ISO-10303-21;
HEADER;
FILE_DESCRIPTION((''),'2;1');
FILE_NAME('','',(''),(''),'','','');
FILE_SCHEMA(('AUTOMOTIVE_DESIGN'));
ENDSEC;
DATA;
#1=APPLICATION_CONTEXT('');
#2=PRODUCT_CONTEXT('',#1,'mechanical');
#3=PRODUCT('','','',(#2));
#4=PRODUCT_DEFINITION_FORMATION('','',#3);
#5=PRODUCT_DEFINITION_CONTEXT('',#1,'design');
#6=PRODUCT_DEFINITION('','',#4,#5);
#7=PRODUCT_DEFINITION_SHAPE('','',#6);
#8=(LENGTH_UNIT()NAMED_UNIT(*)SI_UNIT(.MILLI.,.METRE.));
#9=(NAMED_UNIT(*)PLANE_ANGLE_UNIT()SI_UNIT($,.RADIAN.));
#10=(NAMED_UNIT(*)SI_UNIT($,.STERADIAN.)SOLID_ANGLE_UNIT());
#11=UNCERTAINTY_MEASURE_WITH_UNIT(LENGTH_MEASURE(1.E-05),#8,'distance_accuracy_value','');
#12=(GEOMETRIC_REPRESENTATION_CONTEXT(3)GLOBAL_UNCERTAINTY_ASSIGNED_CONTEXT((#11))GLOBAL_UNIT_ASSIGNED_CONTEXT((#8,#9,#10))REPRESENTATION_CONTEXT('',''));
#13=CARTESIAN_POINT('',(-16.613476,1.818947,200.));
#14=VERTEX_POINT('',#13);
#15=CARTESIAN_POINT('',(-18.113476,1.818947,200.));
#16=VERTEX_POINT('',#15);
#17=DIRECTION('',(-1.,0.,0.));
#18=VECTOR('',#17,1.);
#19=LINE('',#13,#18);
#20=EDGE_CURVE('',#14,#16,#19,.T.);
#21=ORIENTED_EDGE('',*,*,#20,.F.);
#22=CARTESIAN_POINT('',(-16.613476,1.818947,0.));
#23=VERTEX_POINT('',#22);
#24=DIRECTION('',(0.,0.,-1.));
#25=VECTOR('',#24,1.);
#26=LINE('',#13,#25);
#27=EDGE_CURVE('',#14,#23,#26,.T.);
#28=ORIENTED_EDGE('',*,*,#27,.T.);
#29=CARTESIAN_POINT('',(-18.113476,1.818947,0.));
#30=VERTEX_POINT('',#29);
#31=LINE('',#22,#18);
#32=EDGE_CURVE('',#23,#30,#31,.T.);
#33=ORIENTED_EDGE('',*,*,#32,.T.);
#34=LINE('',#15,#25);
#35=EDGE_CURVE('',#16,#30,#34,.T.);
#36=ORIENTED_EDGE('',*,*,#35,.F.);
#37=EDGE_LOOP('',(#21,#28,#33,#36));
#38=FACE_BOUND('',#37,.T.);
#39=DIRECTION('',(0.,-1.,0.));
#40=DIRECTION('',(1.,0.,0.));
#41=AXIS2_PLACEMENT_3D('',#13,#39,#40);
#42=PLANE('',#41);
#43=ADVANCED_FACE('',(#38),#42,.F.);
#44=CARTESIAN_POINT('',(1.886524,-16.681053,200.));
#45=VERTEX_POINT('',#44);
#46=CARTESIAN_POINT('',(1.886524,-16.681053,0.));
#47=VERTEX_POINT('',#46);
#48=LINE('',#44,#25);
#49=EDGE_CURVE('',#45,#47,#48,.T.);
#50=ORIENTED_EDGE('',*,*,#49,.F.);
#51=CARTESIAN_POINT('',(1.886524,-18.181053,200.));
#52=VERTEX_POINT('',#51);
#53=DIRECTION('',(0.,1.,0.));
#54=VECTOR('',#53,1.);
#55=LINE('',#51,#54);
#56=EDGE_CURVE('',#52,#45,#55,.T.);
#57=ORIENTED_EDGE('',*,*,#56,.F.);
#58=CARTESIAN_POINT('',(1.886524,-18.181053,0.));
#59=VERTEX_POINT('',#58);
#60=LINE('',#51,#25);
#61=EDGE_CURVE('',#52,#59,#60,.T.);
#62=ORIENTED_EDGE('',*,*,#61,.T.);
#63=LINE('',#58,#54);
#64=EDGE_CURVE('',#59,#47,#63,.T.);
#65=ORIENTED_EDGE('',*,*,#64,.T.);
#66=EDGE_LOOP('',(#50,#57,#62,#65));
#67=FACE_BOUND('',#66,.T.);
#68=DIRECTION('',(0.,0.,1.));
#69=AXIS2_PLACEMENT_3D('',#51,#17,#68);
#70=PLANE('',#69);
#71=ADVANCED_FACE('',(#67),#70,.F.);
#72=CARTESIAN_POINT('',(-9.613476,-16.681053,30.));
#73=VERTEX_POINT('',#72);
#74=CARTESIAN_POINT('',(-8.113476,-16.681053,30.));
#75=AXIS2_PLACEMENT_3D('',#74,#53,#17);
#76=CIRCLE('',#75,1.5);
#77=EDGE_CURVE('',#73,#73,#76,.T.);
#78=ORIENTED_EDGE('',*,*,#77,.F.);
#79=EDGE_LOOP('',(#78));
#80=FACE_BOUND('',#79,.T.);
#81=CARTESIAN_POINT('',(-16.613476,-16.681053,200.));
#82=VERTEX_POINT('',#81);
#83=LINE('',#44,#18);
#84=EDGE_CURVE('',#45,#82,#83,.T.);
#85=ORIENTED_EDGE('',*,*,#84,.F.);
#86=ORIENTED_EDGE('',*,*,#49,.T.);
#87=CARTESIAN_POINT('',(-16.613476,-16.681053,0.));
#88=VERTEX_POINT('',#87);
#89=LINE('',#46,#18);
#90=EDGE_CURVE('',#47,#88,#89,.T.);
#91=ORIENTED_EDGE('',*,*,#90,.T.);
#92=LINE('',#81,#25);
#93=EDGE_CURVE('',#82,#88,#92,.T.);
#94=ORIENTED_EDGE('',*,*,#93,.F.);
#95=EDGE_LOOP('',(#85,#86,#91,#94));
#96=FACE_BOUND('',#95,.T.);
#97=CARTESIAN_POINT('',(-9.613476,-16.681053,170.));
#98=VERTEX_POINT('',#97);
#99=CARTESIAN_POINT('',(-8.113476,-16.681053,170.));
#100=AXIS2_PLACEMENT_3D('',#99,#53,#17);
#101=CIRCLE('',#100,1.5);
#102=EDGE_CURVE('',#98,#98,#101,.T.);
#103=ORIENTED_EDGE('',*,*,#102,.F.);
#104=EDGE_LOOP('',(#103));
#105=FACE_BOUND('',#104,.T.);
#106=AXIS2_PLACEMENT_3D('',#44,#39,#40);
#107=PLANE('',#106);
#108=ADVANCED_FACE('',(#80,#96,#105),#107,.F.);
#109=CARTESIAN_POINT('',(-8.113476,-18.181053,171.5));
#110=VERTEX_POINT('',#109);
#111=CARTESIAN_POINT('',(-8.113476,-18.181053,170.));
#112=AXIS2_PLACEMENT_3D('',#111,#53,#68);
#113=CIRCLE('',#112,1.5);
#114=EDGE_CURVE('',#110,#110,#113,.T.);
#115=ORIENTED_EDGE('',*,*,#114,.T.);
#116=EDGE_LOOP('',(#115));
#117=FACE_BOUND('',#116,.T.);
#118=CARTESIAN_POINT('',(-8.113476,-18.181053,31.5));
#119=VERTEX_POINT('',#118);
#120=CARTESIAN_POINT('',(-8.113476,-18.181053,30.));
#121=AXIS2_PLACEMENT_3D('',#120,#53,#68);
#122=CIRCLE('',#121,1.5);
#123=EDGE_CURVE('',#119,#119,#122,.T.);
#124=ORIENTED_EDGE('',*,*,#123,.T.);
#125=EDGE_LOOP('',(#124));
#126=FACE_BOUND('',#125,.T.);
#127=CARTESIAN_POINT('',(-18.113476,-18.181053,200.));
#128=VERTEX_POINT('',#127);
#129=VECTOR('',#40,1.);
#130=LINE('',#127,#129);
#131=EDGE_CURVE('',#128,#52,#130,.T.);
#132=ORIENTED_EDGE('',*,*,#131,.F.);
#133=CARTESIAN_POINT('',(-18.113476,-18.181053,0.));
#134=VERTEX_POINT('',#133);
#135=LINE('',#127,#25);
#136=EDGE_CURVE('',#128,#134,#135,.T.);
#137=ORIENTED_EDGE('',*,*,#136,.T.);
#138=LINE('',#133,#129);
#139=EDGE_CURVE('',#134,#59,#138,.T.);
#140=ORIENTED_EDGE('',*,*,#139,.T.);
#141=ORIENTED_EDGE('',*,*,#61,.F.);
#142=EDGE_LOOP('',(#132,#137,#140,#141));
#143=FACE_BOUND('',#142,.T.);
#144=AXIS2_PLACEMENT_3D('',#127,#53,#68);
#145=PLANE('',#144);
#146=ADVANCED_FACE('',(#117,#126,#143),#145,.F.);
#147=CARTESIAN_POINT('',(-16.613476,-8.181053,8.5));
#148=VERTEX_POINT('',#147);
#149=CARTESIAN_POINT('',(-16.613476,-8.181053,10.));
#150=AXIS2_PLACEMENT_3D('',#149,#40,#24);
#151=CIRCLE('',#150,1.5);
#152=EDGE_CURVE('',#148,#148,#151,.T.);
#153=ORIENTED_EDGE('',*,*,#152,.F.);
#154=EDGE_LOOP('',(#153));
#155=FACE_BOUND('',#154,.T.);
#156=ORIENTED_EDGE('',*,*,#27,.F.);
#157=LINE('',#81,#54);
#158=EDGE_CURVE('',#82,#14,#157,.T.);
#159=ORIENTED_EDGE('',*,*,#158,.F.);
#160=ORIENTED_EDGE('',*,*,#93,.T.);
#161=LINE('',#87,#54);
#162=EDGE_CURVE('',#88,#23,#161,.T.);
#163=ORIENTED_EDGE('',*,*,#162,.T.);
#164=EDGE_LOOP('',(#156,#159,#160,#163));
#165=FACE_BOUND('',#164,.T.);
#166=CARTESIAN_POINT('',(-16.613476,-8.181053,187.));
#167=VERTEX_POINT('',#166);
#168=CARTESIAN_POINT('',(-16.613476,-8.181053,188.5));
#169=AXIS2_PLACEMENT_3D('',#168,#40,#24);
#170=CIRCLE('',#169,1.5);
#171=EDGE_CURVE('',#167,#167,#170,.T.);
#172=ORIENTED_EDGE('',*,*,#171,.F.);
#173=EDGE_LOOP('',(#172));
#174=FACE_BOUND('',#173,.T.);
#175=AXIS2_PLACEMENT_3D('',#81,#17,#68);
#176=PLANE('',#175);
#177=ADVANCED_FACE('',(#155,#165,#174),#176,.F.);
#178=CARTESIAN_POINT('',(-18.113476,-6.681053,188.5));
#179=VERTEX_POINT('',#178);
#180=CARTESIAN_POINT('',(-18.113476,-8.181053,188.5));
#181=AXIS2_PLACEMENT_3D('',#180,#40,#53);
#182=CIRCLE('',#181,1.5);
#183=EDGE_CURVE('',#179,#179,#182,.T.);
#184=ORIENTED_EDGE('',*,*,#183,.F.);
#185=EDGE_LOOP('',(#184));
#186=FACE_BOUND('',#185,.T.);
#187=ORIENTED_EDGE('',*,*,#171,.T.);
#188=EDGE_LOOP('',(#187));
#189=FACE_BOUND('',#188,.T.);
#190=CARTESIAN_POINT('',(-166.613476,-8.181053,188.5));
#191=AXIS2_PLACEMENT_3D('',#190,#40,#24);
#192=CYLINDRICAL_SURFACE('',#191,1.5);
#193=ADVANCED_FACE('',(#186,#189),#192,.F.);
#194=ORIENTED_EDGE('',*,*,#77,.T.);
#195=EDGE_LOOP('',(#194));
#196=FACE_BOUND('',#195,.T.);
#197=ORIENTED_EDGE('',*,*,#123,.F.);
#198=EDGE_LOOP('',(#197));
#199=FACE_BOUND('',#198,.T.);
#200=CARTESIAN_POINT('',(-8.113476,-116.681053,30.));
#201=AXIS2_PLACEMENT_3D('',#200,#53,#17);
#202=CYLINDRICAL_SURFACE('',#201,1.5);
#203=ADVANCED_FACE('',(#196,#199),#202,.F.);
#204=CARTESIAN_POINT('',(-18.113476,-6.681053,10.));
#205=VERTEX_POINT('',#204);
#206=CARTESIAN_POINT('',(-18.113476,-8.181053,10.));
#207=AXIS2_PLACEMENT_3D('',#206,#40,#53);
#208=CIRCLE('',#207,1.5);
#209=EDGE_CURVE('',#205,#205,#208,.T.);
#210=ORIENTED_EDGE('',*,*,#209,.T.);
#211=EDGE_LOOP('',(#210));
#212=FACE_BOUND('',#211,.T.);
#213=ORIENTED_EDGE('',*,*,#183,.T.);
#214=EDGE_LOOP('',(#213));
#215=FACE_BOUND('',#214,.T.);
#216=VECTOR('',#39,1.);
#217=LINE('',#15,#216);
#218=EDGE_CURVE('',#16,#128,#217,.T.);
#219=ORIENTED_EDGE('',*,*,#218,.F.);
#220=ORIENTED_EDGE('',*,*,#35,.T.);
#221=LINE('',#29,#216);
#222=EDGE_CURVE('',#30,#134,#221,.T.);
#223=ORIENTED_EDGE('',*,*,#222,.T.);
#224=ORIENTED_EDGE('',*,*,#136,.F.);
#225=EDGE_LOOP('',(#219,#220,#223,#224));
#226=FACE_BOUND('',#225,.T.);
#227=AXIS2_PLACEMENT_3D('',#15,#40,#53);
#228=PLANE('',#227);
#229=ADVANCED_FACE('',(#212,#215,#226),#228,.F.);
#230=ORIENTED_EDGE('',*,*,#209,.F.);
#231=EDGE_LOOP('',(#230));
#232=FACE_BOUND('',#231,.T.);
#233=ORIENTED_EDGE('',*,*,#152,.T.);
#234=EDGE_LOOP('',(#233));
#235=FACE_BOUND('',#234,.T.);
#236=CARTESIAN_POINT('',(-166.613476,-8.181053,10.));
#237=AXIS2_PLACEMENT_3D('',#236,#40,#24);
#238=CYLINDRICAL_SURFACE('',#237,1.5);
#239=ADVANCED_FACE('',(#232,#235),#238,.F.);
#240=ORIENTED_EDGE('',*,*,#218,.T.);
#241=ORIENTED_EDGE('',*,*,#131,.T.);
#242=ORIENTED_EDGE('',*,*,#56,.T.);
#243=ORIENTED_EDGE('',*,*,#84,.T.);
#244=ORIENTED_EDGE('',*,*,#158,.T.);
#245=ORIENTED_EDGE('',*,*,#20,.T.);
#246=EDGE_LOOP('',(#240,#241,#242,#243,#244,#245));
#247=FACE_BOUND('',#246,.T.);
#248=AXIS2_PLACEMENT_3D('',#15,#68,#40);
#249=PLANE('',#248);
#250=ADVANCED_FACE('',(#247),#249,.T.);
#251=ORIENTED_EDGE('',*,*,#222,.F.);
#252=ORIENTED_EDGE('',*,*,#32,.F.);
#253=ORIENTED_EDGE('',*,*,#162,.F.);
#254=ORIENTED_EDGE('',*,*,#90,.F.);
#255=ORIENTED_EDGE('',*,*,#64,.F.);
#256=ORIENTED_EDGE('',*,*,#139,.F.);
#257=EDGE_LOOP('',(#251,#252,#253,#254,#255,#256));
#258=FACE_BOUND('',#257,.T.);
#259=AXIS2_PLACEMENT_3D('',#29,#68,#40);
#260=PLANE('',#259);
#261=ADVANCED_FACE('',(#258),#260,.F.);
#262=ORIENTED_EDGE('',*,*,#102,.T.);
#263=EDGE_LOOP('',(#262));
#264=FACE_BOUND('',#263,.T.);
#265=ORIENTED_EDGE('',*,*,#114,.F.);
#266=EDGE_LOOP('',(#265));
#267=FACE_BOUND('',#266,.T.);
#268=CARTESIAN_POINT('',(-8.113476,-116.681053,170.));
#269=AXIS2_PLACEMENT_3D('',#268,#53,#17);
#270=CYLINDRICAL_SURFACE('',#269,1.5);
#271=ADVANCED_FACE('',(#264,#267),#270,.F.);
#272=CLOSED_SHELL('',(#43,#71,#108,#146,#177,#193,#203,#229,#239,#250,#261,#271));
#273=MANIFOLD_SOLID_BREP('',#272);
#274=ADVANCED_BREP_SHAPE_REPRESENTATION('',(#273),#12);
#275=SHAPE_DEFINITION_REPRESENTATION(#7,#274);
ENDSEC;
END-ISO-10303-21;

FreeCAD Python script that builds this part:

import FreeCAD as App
import Part
import Sketcher

V = App.Vector
Q = App.Units.Quantity

doc = App.newDocument("Part")
body = doc.addObject("PartDesign::Body", "Body")

# Sketch on XY plane
sketch1 = body.newObject("Sketcher::SketchObject", "Sketch")
sketch1.AttachmentSupport = (doc.getObject("XY_Plane"), [""])
sketch1.MapMode = "FlatFace"
sketch1.addGeometry([
    Part.LineSegment(V(-18.1, 1.8, 0), V(-18.1, -18.2, 0)),  # 0
    Part.LineSegment(V(-18.1, -18.2, 0), V(1.9, -18.2, 0)),  # 1
    Part.LineSegment(V(1.9, -18.2, 0), V(1.9, -16.7, 0)),  # 2
    Part.LineSegment(V(1.9, -16.7, 0), V(-16.6, -16.7, 0)),  # 3
    Part.LineSegment(V(-16.6, -16.7, 0), V(-16.6, 1.8, 0)),  # 4
    Part.LineSegment(V(-16.6, 1.8, 0), V(-18.1, 1.8, 0)),  # 5
], False)
sketch1.addConstraint([
    Sketcher.Constraint("Coincident", 0, 2, 1, 1),
    Sketcher.Constraint("Coincident", 1, 2, 2, 1),
    Sketcher.Constraint("Coincident", 2, 2, 3, 1),
    Sketcher.Constraint("Coincident", 3, 2, 4, 1),
    Sketcher.Constraint("Coincident", 4, 2, 5, 1),
    Sketcher.Constraint("Coincident", 5, 2, 0, 1),
    Sketcher.Constraint("Vertical", 0),
    Sketcher.Constraint("Horizontal", 1),
    Sketcher.Constraint("Vertical", 2),
    Sketcher.Constraint("Horizontal", 3),
    Sketcher.Constraint("Vertical", 4),
    Sketcher.Constraint("Horizontal", 5),
    Sketcher.Constraint("Equal", 1, 0),
    Sketcher.Constraint("Equal", 5, 2),
    Sketcher.Constraint("DistanceX", 1, 1, 1, 2, Q("20 mm")),
    Sketcher.Constraint("DistanceX", 3, 2, 3, 1, Q("18.5 mm")),
    Sketcher.Constraint("DistanceX", 0, 2, -1, 1, Q("18.113476 mm")),
    Sketcher.Constraint("DistanceY", 0, 2, -1, 1, Q("18.181053 mm")),
])
pad1 = body.newObject("PartDesign::Pad", "Pad")
pad1.Profile = sketch1
pad1.Length = 200

# Sketch on YZ plane
sketch2 = body.newObject("Sketcher::SketchObject", "Sketch001")
sketch2.AttachmentSupport = (doc.getObject("YZ_Plane"), [""])
sketch2.MapMode = "FlatFace"
sketch2.AttachmentOffset = App.Placement(V(0, 0, -16.613476), App.Rotation())
sketch2.addGeometry([
    Part.Circle(V(-8.2, 10, 0), V(0, 0, 1), 1.5),
    Part.Circle(V(-8.2, 188.5, 0), V(0, 0, 1), 1.5),
], False)
sketch2.addConstraint([
    Sketcher.Constraint("Equal", 0, 1),
    Sketcher.Constraint("Vertical", 0, 3, 1, 3),
    Sketcher.Constraint("Diameter", 0, Q("3 mm")),
    Sketcher.Constraint("DistanceY", -1, 1, 0, 3, Q("10 mm")),
    Sketcher.Constraint("DistanceY", -1, 1, 1, 3, Q("188.5 mm")),
    Sketcher.Constraint("DistanceX", 0, 3, -1, 1, Q("8.181053 mm")),
])
pocket1 = body.newObject("PartDesign::Pocket", "Pocket")
pocket1.Profile = sketch2
pocket1.Length = 150

# Sketch on XZ plane
sketch3 = body.newObject("Sketcher::SketchObject", "Sketch002")
sketch3.AttachmentSupport = (doc.getObject("XZ_Plane"), [""])
sketch3.MapMode = "FlatFace"
sketch3.AttachmentOffset = App.Placement(V(0, 0, 16.681053), App.Rotation())
sketch3.addGeometry([
    Part.Circle(V(-8.1, 170, 0), V(0, 0, 1), 1.5),
    Part.Circle(V(-8.1, 30, 0), V(0, 0, 1), 1.5),
], False)
sketch3.addConstraint([
    Sketcher.Constraint("Equal", 0, 1),
    Sketcher.Constraint("Vertical", 0, 3, 1, 3),
    Sketcher.Constraint("Diameter", 0, Q("3 mm")),
    Sketcher.Constraint("DistanceY", -1, 1, 0, 3, Q("170 mm")),
    Sketcher.Constraint("DistanceY", -1, 1, 1, 3, Q("30 mm")),
    Sketcher.Constraint("DistanceX", 0, 3, -1, 1, Q("8.113476 mm")),
])
pocket2 = body.newObject("PartDesign::Pocket", "Pocket001")
pocket2.Profile = sketch3
pocket2.Length = 100
pocket2.Reversed = True

doc.recompute()
